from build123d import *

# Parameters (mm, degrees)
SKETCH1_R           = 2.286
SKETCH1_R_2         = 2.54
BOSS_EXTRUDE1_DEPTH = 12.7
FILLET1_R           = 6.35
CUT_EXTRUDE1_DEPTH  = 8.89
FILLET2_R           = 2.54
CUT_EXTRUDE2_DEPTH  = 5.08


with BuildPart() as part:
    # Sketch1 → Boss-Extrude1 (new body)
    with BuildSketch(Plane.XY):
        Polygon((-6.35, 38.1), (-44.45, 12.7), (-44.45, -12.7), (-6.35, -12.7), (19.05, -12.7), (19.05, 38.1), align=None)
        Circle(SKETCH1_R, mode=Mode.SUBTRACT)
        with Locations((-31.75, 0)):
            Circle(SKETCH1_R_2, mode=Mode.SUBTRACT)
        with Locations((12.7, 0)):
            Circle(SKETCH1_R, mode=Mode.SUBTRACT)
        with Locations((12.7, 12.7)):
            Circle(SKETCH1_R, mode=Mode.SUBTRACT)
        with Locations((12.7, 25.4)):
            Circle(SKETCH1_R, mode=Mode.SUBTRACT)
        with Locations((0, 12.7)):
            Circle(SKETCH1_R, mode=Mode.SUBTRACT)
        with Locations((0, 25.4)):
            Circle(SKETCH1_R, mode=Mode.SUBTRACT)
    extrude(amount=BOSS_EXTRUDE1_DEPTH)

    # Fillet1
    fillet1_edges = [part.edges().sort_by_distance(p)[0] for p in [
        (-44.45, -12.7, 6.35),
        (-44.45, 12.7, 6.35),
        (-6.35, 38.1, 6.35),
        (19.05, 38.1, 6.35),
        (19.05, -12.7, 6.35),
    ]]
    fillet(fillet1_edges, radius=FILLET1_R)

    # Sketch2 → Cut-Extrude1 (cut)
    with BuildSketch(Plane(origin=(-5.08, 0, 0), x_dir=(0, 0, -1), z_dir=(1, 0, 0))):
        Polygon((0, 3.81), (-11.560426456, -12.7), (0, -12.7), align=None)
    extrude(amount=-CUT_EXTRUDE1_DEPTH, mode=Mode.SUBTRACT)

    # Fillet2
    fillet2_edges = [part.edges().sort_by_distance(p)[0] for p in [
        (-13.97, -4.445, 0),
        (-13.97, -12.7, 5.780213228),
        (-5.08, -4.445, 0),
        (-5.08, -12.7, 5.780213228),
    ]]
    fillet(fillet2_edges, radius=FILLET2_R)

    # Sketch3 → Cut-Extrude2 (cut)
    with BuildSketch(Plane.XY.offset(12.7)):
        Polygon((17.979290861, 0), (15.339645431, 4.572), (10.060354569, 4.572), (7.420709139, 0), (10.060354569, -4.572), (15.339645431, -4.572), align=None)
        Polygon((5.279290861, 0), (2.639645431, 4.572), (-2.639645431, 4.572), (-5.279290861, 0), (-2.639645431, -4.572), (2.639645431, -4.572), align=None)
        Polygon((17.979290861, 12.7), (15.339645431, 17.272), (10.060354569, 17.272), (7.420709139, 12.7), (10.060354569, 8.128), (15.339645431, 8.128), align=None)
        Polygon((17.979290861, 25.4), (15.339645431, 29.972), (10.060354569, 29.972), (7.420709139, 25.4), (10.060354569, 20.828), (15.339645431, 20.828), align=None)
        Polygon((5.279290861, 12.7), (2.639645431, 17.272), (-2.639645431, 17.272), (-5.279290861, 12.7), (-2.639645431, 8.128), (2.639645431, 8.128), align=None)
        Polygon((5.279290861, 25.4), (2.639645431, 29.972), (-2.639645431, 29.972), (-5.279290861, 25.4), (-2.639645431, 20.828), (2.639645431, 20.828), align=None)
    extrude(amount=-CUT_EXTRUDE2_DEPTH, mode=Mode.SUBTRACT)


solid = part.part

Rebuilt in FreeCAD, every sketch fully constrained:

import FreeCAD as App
import Part
import Sketcher
from FreeCAD import Vector
Q = App.Units.Quantity


def edges_at(feature, points):
    """Names of the edges that pass closest to the given points."""
    edges = feature.Shape.Edges
    near = lambda p: min(range(len(edges)), key=lambda i: edges[i].distToShape(Part.Vertex(*p))[0])
    return sorted({f"Edge{near(p) + 1}" for p in points})

doc = App.newDocument("Part")
params = doc.addObject("Spreadsheet::Sheet", "Params")
for row, (alias, value) in enumerate([
    ("sketch1_diameter", "0.2 in"),
    ("sketch1_diameter2", "0.18 in"),
    ("sketch1_width", "1 in"),
    ("sketch1_height", "2 in"),
    ("sketch1_width2", "2.5 in"),
    ("pad1_length", "0.5 in"),
    ("fillet_radius", "0.25 in"),
    ("sketch2_width", "0.65 in"),
    ("pocket1_length", "0.35 in"),
    ("fillet2_radius", "0.1 in"),
    ("pocket2_length", "0.2 in"),
], start=1):
    params.set(f"A{row}", alias)
    params.set(f"B{row}", "=" + value)
    params.setAlias(f"B{row}", alias)

body = doc.addObject("PartDesign::Body", "Body")

# Sketch on XY plane
sketch1 = body.newObject("Sketcher::SketchObject", "Sketch")
sketch1.AttachmentSupport = (doc.getObject("XY_Plane"), [""])
sketch1.MapMode = "FlatFace"
sketch1.addGeometry(Part.LineSegment(Vector(-6.3, 38.1, 0), Vector(-44.5, 12.7, 0)), False)
sketch1.addGeometry(Part.LineSegment(Vector(-44.5, 12.7, 0), Vector(-44.5, -12.7, 0)), False)
sketch1.addGeometry(Part.LineSegment(Vector(-44.5, -12.7, 0), Vector(19.1, -12.7, 0)), False)
sketch1.addGeometry(Part.LineSegment(Vector(19.1, -12.7, 0), Vector(19.1, 38.1, 0)), False)
sketch1.addGeometry(Part.LineSegment(Vector(19.1, 38.1, 0), Vector(-6.3, 38.1, 0)), False)
sketch1.addGeometry(Part.Circle(Vector(-31.8, 0, 0), Vector(0, 0, 1), 2.5), False)
sketch1.addGeometry(Part.Circle(Vector(0, 0, 0), Vector(0, 0, 1), 2.3), False)
sketch1.addGeometry(Part.Circle(Vector(12.7, 0, 0), Vector(0, 0, 1), 2.3), False)
sketch1.addGeometry(Part.Circle(Vector(0, 12.7, 0), Vector(0, 0, 1), 2.3), False)
sketch1.addGeometry(Part.Circle(Vector(12.7, 12.7, 0), Vector(0, 0, 1), 2.3), False)
sketch1.addGeometry(Part.Circle(Vector(0, 25.4, 0), Vector(0, 0, 1), 2.3), False)
sketch1.addGeometry(Part.Circle(Vector(12.7, 25.4, 0), Vector(0, 0, 1), 2.3), False)
sketch1.addConstraint(Sketcher.Constraint("Coincident", 0, 2, 1, 1))
sketch1.addConstraint(Sketcher.Constraint("Coincident", 1, 2, 2, 1))
sketch1.addConstraint(Sketcher.Constraint("Coincident", 2, 2, 3, 1))
sketch1.addConstraint(Sketcher.Constraint("Coincident", 3, 2, 4, 1))
sketch1.addConstraint(Sketcher.Constraint("Coincident", 4, 2, 0, 1))
sketch1.addConstraint(Sketcher.Constraint("Vertical", 1))
sketch1.addConstraint(Sketcher.Constraint("Horizontal", 2))
sketch1.addConstraint(Sketcher.Constraint("Vertical", 3))
sketch1.addConstraint(Sketcher.Constraint("Horizontal", 4))
sketch1.addConstraint(Sketcher.Constraint("Coincident", 6, 3, -1, 1))
sketch1.addConstraint(Sketcher.Constraint("Equal", 6, 7))
sketch1.addConstraint(Sketcher.Constraint("Equal", 7, 8))
sketch1.addConstraint(Sketcher.Constraint("Equal", 8, 9))
sketch1.addConstraint(Sketcher.Constraint("Equal", 9, 10))
sketch1.addConstraint(Sketcher.Constraint("Equal", 10, 11))
sketch1.addConstraint(Sketcher.Constraint("PointOnObject", 5, 3, -1))
sketch1.addConstraint(Sketcher.Constraint("PointOnObject", 7, 3, -1))
sketch1.addConstraint(Sketcher.Constraint("PointOnObject", 8, 3, -2))
sketch1.addConstraint(Sketcher.Constraint("PointOnObject", 10, 3, -2))
sketch1.addConstraint(Sketcher.Constraint("Horizontal", 8, 3, 9, 3))
sketch1.addConstraint(Sketcher.Constraint("Horizontal", 10, 3, 11, 3))
sketch1.addConstraint(Sketcher.Constraint("Horizontal", 9, 3, 0, 2))
sketch1.addConstraint(Sketcher.Constraint("Vertical", 7, 3, 9, 3))
sketch1.addConstraint(Sketcher.Constraint("Vertical", 9, 3, 11, 3))
sketch1.addConstraint(Sketcher.Constraint("Equal", 4, 1))
sketch1.addConstraint(Sketcher.Constraint("Diameter", 5, Q("0.2 in")))
sketch1.addConstraint(Sketcher.Constraint("Diameter", 6, Q("0.18 in")))
sketch1.addConstraint(Sketcher.Constraint("DistanceX", 4, 2, 4, 1, Q("1 in")))
sketch1.addConstraint(Sketcher.Constraint("DistanceY", 3, 1, 3, 2, Q("2 in")))
sketch1.addConstraint(Sketcher.Constraint("DistanceX", 2, 1, 2, 2, Q("2.5 in")))
sketch1.addConstraint(Sketcher.Constraint("DistanceY", -1, 1, 10, 3, Q("1 in")))
sketch1.addConstraint(Sketcher.Constraint("DistanceX", -1, 1, 7, 3, Q("0.5 in")))
sketch1.addConstraint(Sketcher.Constraint("DistanceY", -1, 1, 8, 3, Q("0.5 in")))
sketch1.addConstraint(Sketcher.Constraint("DistanceX", 0, 2, 5, 3, Q("0.5 in")))
sketch1.addConstraint(Sketcher.Constraint("DistanceX", 5, 3, -1, 1, Q("1.25 in")))
sketch1.setExpression("Constraints[25]", "Params.sketch1_diameter")
sketch1.setExpression("Constraints[26]", "Params.sketch1_diameter2")
sketch1.setExpression("Constraints[27]", "Params.sketch1_width")
sketch1.setExpression("Constraints[28]", "Params.sketch1_height")
sketch1.setExpression("Constraints[29]", "Params.sketch1_width2")
pad1 = body.newObject("PartDesign::Pad", "Pad")
pad1.Profile = sketch1
pad1.setExpression("Length", "Params.pad1_length")
doc.recompute()

fillet = body.newObject("PartDesign::Fillet", "Fillet")
fillet.Base = (pad1, edges_at(pad1, [
    (-44.45, -12.7, 6.35),
    (-44.45, 12.7, 6.35),
    (-6.35, 38.1, 6.35),
    (19.05, 38.1, 6.35),
    (19.05, -12.7, 6.35),
]))
fillet.setExpression("Radius", "Params.fillet_radius")

# Sketch on YZ plane
sketch2 = body.newObject("Sketcher::SketchObject", "Sketch001")
sketch2.AttachmentSupport = (doc.getObject("YZ_Plane"), [""])
sketch2.MapMode = "FlatFace"
sketch2.AttachmentOffset = App.Placement(Vector(0, 0, -0.2 * 25.4), App.Rotation())
sketch2.addGeometry(Part.LineSegment(Vector(4, 0, 0), Vector(-13, 12, 0)), False)
sketch2.addGeometry(Part.LineSegment(Vector(-13, 12, 0), Vector(-13, 0, 0)), False)
sketch2.addGeometry(Part.LineSegment(Vector(-13, 0, 0), Vector(4, 0, 0)), False)
sketch2.addConstraint(Sketcher.Constraint("Coincident", 0, 2, 1, 1))
sketch2.addConstraint(Sketcher.Constraint("Coincident", 1, 2, 2, 1))
sketch2.addConstraint(Sketcher.Constraint("Coincident", 2, 2, 0, 1))
sketch2.addConstraint(Sketcher.Constraint("Vertical", 1))
sketch2.addConstraint(Sketcher.Constraint("Horizontal", 2))
sketch2.addConstraint(Sketcher.Constraint("PointOnObject", 1, 2, -1))
sketch2.addConstraint(Sketcher.Constraint("Angle", 0, Q("145 deg")))
sketch2.addConstraint(Sketcher.Constraint("DistanceX", 2, 1, 2, 2, Q("0.65 in")))
sketch2.addConstraint(Sketcher.Constraint("DistanceX", 0, 2, -1, 1, Q("0.5 in")))
sketch2.setExpression("Constraints[7]", "Params.sketch2_width")
pocket1 = body.newObject("PartDesign::Pocket", "Pocket")
pocket1.Profile = sketch2
pocket1.setExpression("Length", "Params.pocket1_length")
doc.recompute()

fillet2 = body.newObject("PartDesign::Fillet", "Fillet001")
fillet2.Base = (pocket1, edges_at(pocket1, [
    (-13.97, -4.445, 0),
    (-13.97, -12.7, 5.78),
    (-5.08, -4.445, 0),
    (-5.08, -12.7, 5.78),
]))
fillet2.setExpression("Radius", "Params.fillet2_radius")

# Sketch on XY plane
sketch3 = body.newObject("Sketcher::SketchObject", "Sketch002")
sketch3.AttachmentSupport = (doc.getObject("XY_Plane"), [""])
sketch3.MapMode = "FlatFace"
sketch3.AttachmentOffset = App.Placement(Vector(0, 0, 0.5 * 25.4), App.Rotation())
sketch3.addGeometry(Part.LineSegment(Vector(18, 0, 0), Vector(15, 5, 0)), False)
sketch3.addGeometry(Part.LineSegment(Vector(15, 5, 0), Vector(10, 5, 0)), False)
sketch3.addGeometry(Part.LineSegment(Vector(10, 5, 0), Vector(7, 0, 0)), False)
sketch3.addGeometry(Part.LineSegment(Vector(7, 0, 0), Vector(10, -5, 0)), False)
sketch3.addGeometry(Part.LineSegment(Vector(10, -5, 0), Vector(15, -5, 0)), False)
sketch3.addGeometry(Part.LineSegment(Vector(15, -5, 0), Vector(18, 0, 0)), False)
sketch3.addGeometry(Part.LineSegment(Vector(5, 0, 0), Vector(3, 5, 0)), False)
sketch3.addGeometry(Part.LineSegment(Vector(3, 5, 0), Vector(-3, 5, 0)), False)
sketch3.addGeometry(Part.LineSegment(Vector(-3, 5, 0), Vector(-5, 0, 0)), False)
sketch3.addGeometry(Part.LineSegment(Vector(-5, 0, 0), Vector(-3, -5, 0)), False)
sketch3.addGeometry(Part.LineSegment(Vector(-3, -5, 0), Vector(3, -5, 0)), False)
sketch3.addGeometry(Part.LineSegment(Vector(3, -5, 0), Vector(5, 0, 0)), False)
sketch3.addGeometry(Part.LineSegment(Vector(18, 13, 0), Vector(15, 17, 0)), False)
sketch3.addGeometry(Part.LineSegment(Vector(15, 17, 0), Vector(10, 17, 0)), False)
sketch3.addGeometry(Part.LineSegment(Vector(10, 17, 0), Vector(7, 13, 0)), False)
sketch3.addGeometry(Part.LineSegment(Vector(7, 13, 0), Vector(10, 8, 0)), False)
sketch3.addGeometry(Part.LineSegment(Vector(10, 8, 0), Vector(15, 8, 0)), False)
sketch3.addGeometry(Part.LineSegment(Vector(15, 8, 0), Vector(18, 13, 0)), False)
sketch3.addGeometry(Part.LineSegment(Vector(18, 25, 0), Vector(15, 30, 0)), False)
sketch3.addGeometry(Part.LineSegment(Vector(15, 30, 0), Vector(10, 30, 0)), False)
sketch3.addGeometry(Part.LineSegment(Vector(10, 30, 0), Vector(7, 25, 0)), False)
sketch3.addGeometry(Part.LineSegment(Vector(7, 25, 0), Vector(10, 21, 0)), False)
sketch3.addGeometry(Part.LineSegment(Vector(10, 21, 0), Vector(15, 21, 0)), False)
sketch3.addGeometry(Part.LineSegment(Vector(15, 21, 0), Vector(18, 25, 0)), False)
sketch3.addGeometry(Part.LineSegment(Vector(5, 13, 0), Vector(3, 17, 0)), False)
sketch3.addGeometry(Part.LineSegment(Vector(3, 17, 0), Vector(-3, 17, 0)), False)
sketch3.addGeometry(Part.LineSegment(Vector(-3, 17, 0), Vector(-5, 13, 0)), False)
sketch3.addGeometry(Part.LineSegment(Vector(-5, 13, 0), Vector(-3, 8, 0)), False)
sketch3.addGeometry(Part.LineSegment(Vector(-3, 8, 0), Vector(3, 8, 0)), False)
sketch3.addGeometry(Part.LineSegment(Vector(3, 8, 0), Vector(5, 13, 0)), False)
sketch3.addGeometry(Part.LineSegment(Vector(5, 25, 0), Vector(3, 30, 0)), False)
sketch3.addGeometry(Part.LineSegment(Vector(3, 30, 0), Vector(-3, 30, 0)), False)
sketch3.addGeometry(Part.LineSegment(Vector(-3, 30, 0), Vector(-5, 25, 0)), False)
sketch3.addGeometry(Part.LineSegment(Vector(-5, 25, 0), Vector(-3, 21, 0)), False)
sketch3.addGeometry(Part.LineSegment(Vector(-3, 21, 0), Vector(3, 21, 0)), False)
sketch3.addGeometry(Part.LineSegment(Vector(3, 21, 0), Vector(5, 25, 0)), False)
sketch3.addConstraint(Sketcher.Constraint("Coincident", 0, 2, 1, 1))
sketch3.addConstraint(Sketcher.Constraint("Coincident", 1, 2, 2, 1))
sketch3.addConstraint(Sketcher.Constraint("Coincident", 2, 2, 3, 1))
sketch3.addConstraint(Sketcher.Constraint("Coincident", 3, 2, 4, 1))
sketch3.addConstraint(Sketcher.Constraint("Coincident", 4, 2, 5, 1))
sketch3.addConstraint(Sketcher.Constraint("Coincident", 5, 2, 0, 1))
sketch3.addConstraint(Sketcher.Constraint("Coincident", 6, 2, 7, 1))
sketch3.addConstraint(Sketcher.Constraint("Coincident", 7, 2, 8, 1))
sketch3.addConstraint(Sketcher.Constraint("Coincident", 8, 2, 9, 1))
sketch3.addConstraint(Sketcher.Constraint("Coincident", 9, 2, 10, 1))
sketch3.addConstraint(Sketcher.Constraint("Coincident", 10, 2, 11, 1))
sketch3.addConstraint(Sketcher.Constraint("Coincident", 11, 2, 6, 1))
sketch3.addConstraint(Sketcher.Constraint("Coincident", 12, 2, 13, 1))
sketch3.addConstraint(Sketcher.Constraint("Coincident", 13, 2, 14, 1))
sketch3.addConstraint(Sketcher.Constraint("Coincident", 14, 2, 15, 1))
sketch3.addConstraint(Sketcher.Constraint("Coincident", 15, 2, 16, 1))
sketch3.addConstraint(Sketcher.Constraint("Coincident", 16, 2, 17, 1))
sketch3.addConstraint(Sketcher.Constraint("Coincident", 17, 2, 12, 1))
sketch3.addConstraint(Sketcher.Constraint("Coincident", 18, 2, 19, 1))
sketch3.addConstraint(Sketcher.Constraint("Coincident", 19, 2, 20, 1))
sketch3.addConstraint(Sketcher.Constraint("Coincident", 20, 2, 21, 1))
sketch3.addConstraint(Sketcher.Constraint("Coincident", 21, 2, 22, 1))
sketch3.addConstraint(Sketcher.Constraint("Coincident", 22, 2, 23, 1))
sketch3.addConstraint(Sketcher.Constraint("Coincident", 23, 2, 18, 1))
sketch3.addConstraint(Sketcher.Constraint("Coincident", 24, 2, 25, 1))
sketch3.addConstraint(Sketcher.Constraint("Coincident", 25, 2, 26, 1))
sketch3.addConstraint(Sketcher.Constraint("Coincident", 26, 2, 27, 1))
sketch3.addConstraint(Sketcher.Constraint("Coincident", 27, 2, 28, 1))
sketch3.addConstraint(Sketcher.Constraint("Coincident", 28, 2, 29, 1))
sketch3.addConstraint(Sketcher.Constraint("Coincident", 29, 2, 24, 1))
sketch3.addConstraint(Sketcher.Constraint("Coincident", 30, 2, 31, 1))
sketch3.addConstraint(Sketcher.Constraint("Coincident", 31, 2, 32, 1))
sketch3.addConstraint(Sketcher.Constraint("Coincident", 32, 2, 33, 1))
sketch3.addConstraint(Sketcher.Constraint("Coincident", 33, 2, 34, 1))
sketch3.addConstraint(Sketcher.Constraint("Coincident", 34, 2, 35, 1))
sketch3.addConstraint(Sketcher.Constraint("Coincident", 35, 2, 30, 1))
sketch3.addConstraint(Sketcher.Constraint("Horizontal", 1))
sketch3.addConstraint(Sketcher.Constraint("Horizontal", 4))
sketch3.addConstraint(Sketcher.Constraint("Horizontal", 7))
sketch3.addConstraint(Sketcher.Constraint("Horizontal", 10))
sketch3.addConstraint(Sketcher.Constraint("Horizontal", 13))
sketch3.addConstraint(Sketcher.Constraint("Horizontal", 16))
sketch3.addConstraint(Sketcher.Constraint("Horizontal", 19))
sketch3.addConstraint(Sketcher.Constraint("Horizontal", 22))
sketch3.addConstraint(Sketcher.Constraint("Horizontal", 25))
sketch3.addConstraint(Sketcher.Constraint("Horizontal", 28))
sketch3.addConstraint(Sketcher.Constraint("Horizontal", 31))
sketch3.addConstraint(Sketcher.Constraint("Horizontal", 34))
sketch3.addConstraint(Sketcher.Constraint("Symmetric", 6, 2, 9, 2, -1, 1))
sketch3.addConstraint(Sketcher.Constraint("Symmetric", 8, 2, 11, 2, -1, 1))
sketch3.addConstraint(Sketcher.Constraint("Symmetric", 26, 2, 29, 2, -2))
sketch3.addConstraint(Sketcher.Constraint("Symmetric", 32, 2, 35, 2, -2))
sketch3.addConstraint(Sketcher.Constraint("Symmetric", 1, 2, 3, 2, -1))
sketch3.addConstraint(Sketcher.Constraint("PointOnObject", 2, 2, -1))
sketch3.addConstraint(Sketcher.Constraint("PointOnObject", 5, 2, -1))
sketch3.addConstraint(Sketcher.Constraint("PointOnObject", 8, 2, -1))
sketch3.addConstraint(Sketcher.Constraint("Parallel", 0, 3))
sketch3.addConstraint(Sketcher.Constraint("Parallel", 2, 5))
sketch3.addConstraint(Sketcher.Constraint("Parallel", 3, 6))
sketch3.addConstraint(Sketcher.Constraint("Parallel", 5, 8))
sketch3.addConstraint(Sketcher.Constraint("Parallel", 8, 11))
sketch3.addConstraint(Sketcher.Constraint("Parallel", 9, 12))
sketch3.addConstraint(Sketcher.Constraint("Parallel", 11, 14))
sketch3.addConstraint(Sketcher.Constraint("Parallel", 12, 15))
sketch3.addConstraint(Sketcher.Constraint("Parallel", 14, 17))
sketch3.addConstraint(Sketcher.Constraint("Parallel", 15, 18))
sketch3.addConstraint(Sketcher.Constraint("Parallel", 17, 20))
sketch3.addConstraint(Sketcher.Constraint("Parallel", 18, 21))
sketch3.addConstraint(Sketcher.Constraint("Parallel", 20, 23))
sketch3.addConstraint(Sketcher.Constraint("Parallel", 21, 24))
sketch3.addConstraint(Sketcher.Constraint("Parallel", 23, 26))
sketch3.addConstraint(Sketcher.Constraint("Parallel", 24, 27))
sketch3.addConstraint(Sketcher.Constraint("Parallel", 26, 29))
sketch3.addConstraint(Sketcher.Constraint("Parallel", 27, 30))
sketch3.addConstraint(Sketcher.Constraint("Parallel", 29, 32))
sketch3.addConstraint(Sketcher.Constraint("Parallel", 30, 33))
sketch3.addConstraint(Sketcher.Constraint("Parallel", 32, 35))
sketch3.addConstraint(Sketcher.Constraint("Horizontal", 1, 2, 6, 2))
sketch3.addConstraint(Sketcher.Constraint("Horizontal", 14, 2, 17, 2))
sketch3.addConstraint(Sketcher.Constraint("Horizontal", 20, 2, 23, 2))
sketch3.addConstraint(Sketcher.Constraint("Horizontal", 13, 2, 24, 2))
sketch3.addConstraint(Sketcher.Constraint("Horizontal", 17, 2, 26, 2))
sketch3.addConstraint(Sketcher.Constraint("Horizontal", 16, 2, 27, 2))
sketch3.addConstraint(Sketcher.Constraint("Horizontal", 19, 2, 30, 2))
sketch3.addConstraint(Sketcher.Constraint("Horizontal", 23, 2, 32, 2))
sketch3.addConstraint(Sketcher.Constraint("Horizontal", 22, 2, 33, 2))
sketch3.addConstraint(Sketcher.Constraint("Vertical", 4, 2, 12, 2))
sketch3.addConstraint(Sketcher.Constraint("Vertical", 3, 2, 13, 2))
sketch3.addConstraint(Sketcher.Constraint("Vertical", 2, 2, 14, 2))
sketch3.addConstraint(Sketcher.Constraint("Vertical", 13, 2, 15, 2))
sketch3.addConstraint(Sketcher.Constraint("Vertical", 16, 2, 18, 2))
sketch3.addConstraint(Sketcher.Constraint("Vertical", 15, 2, 19, 2))
sketch3.addConstraint(Sketcher.Constraint("Vertical", 14, 2, 20, 2))
sketch3.addConstraint(Sketcher.Constraint("Vertical", 19, 2, 21, 2))
sketch3.addConstraint(Sketcher.Constraint("Vertical", 10, 2, 24, 2))
sketch3.addConstraint(Sketcher.Constraint("Vertical", 28, 2, 30, 2))
sketch3.addConstraint(Sketcher.Constraint("Equal", 4, 7))
sketch3.addConstraint(Sketcher.Constraint("DistanceY", -1, 1, 20, 2, Q("1 in")))
sketch3.addConstraint(Sketcher.Constraint("Angle", 0, Q("120 deg")))
sketch3.addConstraint(Sketcher.Constraint("DistanceY", -1, 1, 14, 2, Q("0.5 in")))
sketch3.addConstraint(Sketcher.Constraint("DistanceX", 6, 2, 0, 2, Q("0.5 in")))
sketch3.addConstraint(Sketcher.Constraint("DistanceY", -1, 1, 0, 2, Q("0.18 in")))
sketch3.addConstraint(Sketcher.Constraint("DistanceX", 1, 2, 1, 1, Q("5.279291 mm")))
pocket2 = body.newObject("PartDesign::Pocket", "Pocket001")
pocket2.Profile = sketch3
pocket2.setExpression("Length", "Params.pocket2_length")

doc.recompute()
